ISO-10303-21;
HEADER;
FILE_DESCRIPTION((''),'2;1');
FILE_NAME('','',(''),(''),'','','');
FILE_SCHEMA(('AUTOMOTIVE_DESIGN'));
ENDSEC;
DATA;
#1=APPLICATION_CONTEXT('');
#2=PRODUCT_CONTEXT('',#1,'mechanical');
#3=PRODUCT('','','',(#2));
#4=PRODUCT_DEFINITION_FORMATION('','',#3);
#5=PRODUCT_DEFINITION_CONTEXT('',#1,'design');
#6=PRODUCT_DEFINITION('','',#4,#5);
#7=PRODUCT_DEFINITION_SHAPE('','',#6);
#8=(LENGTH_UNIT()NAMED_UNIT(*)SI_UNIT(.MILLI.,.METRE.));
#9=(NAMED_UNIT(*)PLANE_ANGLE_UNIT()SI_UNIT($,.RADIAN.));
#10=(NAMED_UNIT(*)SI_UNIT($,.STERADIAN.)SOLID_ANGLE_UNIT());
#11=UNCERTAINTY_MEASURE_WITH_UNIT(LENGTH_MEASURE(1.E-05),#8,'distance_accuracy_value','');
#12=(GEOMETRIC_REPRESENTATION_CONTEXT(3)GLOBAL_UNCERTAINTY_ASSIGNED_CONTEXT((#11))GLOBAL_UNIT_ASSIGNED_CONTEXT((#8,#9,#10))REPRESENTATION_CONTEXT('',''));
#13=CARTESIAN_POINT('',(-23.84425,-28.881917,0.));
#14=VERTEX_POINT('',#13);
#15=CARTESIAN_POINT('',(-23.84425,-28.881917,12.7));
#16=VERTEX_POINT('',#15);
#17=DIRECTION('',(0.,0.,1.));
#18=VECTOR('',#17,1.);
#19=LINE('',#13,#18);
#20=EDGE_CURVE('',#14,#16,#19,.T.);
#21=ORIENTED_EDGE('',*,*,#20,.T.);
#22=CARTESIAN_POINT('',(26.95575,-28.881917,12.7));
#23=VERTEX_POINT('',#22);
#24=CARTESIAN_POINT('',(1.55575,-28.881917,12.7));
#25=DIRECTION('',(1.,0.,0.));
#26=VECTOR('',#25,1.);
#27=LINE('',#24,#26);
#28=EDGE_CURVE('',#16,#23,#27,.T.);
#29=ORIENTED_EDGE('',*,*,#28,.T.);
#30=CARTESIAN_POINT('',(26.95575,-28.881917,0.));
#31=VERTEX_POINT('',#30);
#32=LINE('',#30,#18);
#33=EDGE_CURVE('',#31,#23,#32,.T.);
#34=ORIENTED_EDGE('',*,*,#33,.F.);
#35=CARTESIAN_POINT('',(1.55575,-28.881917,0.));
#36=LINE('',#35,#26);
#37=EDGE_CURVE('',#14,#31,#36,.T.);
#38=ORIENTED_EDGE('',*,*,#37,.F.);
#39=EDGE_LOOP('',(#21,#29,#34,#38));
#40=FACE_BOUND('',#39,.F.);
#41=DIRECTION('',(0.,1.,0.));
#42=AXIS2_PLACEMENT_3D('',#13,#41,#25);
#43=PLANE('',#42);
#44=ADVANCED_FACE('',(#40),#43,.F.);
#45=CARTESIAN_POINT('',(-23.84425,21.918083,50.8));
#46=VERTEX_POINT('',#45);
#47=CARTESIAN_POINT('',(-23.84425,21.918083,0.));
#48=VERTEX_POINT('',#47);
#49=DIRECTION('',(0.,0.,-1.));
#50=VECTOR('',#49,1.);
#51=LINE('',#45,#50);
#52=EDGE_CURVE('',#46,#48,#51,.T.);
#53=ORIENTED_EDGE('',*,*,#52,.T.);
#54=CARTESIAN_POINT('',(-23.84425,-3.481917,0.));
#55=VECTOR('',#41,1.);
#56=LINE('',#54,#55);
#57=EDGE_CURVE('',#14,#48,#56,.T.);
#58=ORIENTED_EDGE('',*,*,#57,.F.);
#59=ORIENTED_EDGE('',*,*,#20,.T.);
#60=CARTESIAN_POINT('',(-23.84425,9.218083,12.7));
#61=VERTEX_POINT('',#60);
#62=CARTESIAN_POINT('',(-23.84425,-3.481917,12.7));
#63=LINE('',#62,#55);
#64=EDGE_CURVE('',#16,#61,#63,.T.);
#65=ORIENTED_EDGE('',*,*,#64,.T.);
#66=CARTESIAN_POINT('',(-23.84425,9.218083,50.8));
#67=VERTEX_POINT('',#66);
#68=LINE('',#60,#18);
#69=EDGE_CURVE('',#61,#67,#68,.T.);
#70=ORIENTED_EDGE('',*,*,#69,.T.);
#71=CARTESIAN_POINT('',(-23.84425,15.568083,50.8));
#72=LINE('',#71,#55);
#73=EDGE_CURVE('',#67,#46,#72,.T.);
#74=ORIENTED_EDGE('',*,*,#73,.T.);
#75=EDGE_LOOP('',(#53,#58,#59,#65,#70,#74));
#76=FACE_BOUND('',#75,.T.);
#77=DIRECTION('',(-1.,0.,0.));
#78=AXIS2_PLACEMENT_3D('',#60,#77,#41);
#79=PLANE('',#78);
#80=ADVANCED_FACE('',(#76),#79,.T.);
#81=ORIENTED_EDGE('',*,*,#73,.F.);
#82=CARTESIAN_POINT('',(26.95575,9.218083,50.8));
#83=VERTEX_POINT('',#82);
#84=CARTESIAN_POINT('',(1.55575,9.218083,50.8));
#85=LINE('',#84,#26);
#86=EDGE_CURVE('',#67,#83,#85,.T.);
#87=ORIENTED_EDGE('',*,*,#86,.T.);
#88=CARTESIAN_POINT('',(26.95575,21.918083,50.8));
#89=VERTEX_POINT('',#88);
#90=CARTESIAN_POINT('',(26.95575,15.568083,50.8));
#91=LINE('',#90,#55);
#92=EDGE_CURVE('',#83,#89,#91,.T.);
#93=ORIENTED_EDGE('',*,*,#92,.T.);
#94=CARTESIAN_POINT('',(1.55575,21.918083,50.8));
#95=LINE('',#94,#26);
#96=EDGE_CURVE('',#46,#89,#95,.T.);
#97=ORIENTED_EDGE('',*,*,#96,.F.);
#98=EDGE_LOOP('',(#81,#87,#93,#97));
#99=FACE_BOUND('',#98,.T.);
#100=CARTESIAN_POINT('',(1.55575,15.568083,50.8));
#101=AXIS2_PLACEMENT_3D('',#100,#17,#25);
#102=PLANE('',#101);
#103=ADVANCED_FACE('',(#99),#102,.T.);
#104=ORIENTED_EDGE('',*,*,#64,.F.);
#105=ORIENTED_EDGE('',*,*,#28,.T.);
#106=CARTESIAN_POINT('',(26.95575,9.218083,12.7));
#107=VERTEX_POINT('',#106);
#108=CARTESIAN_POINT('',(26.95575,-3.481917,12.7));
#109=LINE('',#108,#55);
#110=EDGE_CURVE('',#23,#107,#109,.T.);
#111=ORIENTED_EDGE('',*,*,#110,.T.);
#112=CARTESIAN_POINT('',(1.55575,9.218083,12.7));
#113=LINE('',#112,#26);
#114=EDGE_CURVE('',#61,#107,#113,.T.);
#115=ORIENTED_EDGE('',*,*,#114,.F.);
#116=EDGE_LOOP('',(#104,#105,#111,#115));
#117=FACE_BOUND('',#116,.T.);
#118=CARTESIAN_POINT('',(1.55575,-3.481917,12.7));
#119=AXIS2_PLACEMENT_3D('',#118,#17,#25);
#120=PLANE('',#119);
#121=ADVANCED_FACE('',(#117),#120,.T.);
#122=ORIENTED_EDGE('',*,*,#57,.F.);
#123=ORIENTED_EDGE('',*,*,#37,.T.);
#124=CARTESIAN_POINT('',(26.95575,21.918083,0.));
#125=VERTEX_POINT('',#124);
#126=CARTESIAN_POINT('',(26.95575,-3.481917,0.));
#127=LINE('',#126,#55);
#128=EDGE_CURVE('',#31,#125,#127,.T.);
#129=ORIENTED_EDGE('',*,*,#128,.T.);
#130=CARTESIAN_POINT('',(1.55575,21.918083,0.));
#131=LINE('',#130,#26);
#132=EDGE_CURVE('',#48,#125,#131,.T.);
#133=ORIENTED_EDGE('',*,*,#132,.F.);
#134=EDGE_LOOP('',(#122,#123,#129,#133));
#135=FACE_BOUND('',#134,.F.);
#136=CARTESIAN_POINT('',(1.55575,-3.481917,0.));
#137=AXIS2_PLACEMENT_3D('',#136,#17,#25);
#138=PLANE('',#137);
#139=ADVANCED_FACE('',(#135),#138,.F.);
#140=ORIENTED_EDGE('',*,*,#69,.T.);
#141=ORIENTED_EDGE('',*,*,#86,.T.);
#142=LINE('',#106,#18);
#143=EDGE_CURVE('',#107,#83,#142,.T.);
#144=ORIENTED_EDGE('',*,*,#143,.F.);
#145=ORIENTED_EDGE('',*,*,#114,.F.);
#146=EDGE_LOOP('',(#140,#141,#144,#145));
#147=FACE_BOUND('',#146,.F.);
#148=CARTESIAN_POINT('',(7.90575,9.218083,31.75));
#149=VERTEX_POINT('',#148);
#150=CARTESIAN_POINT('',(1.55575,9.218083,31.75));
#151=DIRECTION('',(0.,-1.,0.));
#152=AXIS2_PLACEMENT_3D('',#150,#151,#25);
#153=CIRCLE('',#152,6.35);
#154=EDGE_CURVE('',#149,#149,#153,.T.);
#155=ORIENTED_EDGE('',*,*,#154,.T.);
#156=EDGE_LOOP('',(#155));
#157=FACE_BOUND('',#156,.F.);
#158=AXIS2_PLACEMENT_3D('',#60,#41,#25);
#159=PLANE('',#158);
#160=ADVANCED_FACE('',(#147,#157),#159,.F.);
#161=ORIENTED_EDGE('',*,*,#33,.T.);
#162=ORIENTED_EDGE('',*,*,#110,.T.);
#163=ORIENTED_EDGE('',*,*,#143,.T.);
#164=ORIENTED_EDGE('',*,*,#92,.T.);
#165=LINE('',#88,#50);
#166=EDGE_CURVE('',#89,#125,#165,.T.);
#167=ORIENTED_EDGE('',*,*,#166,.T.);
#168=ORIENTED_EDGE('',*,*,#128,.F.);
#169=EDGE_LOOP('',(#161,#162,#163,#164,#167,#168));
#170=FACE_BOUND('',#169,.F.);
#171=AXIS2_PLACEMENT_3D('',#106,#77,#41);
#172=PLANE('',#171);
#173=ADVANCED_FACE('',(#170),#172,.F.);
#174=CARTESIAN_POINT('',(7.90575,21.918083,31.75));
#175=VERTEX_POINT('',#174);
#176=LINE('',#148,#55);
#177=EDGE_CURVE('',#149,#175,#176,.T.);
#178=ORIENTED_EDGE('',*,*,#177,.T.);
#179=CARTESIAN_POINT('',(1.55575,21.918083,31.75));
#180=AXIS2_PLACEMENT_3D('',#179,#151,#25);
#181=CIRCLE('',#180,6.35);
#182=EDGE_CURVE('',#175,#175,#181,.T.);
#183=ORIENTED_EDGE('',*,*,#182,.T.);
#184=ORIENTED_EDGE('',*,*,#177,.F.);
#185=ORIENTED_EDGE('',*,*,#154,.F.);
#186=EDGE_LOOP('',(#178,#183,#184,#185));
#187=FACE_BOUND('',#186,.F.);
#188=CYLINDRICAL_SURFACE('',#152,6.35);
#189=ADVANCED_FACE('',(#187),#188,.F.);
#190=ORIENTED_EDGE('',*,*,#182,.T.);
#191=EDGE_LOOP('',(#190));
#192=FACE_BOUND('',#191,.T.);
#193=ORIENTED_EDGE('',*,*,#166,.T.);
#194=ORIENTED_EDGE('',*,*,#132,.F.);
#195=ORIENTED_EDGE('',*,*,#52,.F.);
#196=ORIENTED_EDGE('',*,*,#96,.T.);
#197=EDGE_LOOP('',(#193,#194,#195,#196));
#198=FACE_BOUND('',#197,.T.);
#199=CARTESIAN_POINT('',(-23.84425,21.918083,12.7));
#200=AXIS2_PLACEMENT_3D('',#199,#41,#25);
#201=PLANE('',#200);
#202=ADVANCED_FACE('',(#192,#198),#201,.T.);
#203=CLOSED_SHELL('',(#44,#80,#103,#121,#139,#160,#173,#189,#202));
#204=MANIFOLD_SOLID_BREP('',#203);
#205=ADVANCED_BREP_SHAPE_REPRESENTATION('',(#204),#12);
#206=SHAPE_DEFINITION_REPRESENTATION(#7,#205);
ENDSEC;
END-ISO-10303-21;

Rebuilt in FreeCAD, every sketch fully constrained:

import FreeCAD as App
import Part
import Sketcher
from FreeCAD import Vector
Q = App.Units.Quantity

doc = App.newDocument("Part")
body = doc.addObject("PartDesign::Body", "Body")

sketch1 = body.newObject("Sketcher::SketchObject", "Sketch")
sketch1.AttachmentSupport = (doc.getObject("XY_Plane"), [""])
sketch1.MapMode = "FlatFace"
sketch1.addGeometry([
    Part.LineSegment(Vector(-23.84425, 21.918083, 0), Vector(-23.84425, -28.881917, 0)),
    Part.LineSegment(Vector(-23.84425, -28.881917, 0), Vector(26.95575, -28.881917, 0)),
    Part.LineSegment(Vector(26.95575, -28.881917, 0), Vector(26.95575, 21.918083, 0)),
    Part.LineSegment(Vector(26.95575, 21.918083, 0), Vector(-23.84425, 21.918083, 0)),
], False)
sketch1.addConstraint([
    Sketcher.Constraint("Coincident", 0, 2, 1, 1),
    Sketcher.Constraint("Coincident", 1, 2, 2, 1),
    Sketcher.Constraint("Coincident", 2, 2, 3, 1),
    Sketcher.Constraint("Coincident", 3, 2, 0, 1),
    Sketcher.Constraint("Vertical", 0),
    Sketcher.Constraint("Horizontal", 1),
    Sketcher.Constraint("Vertical", 2),
    Sketcher.Constraint("Horizontal", 3),
    Sketcher.Constraint("Equal", 3, 0),
    Sketcher.Constraint("DistanceX", 1, 1, 1, 2, Q("2 in")),
    Sketcher.Constraint("DistanceX", 0, 2, -1, 1, 23.84425),
    Sketcher.Constraint("DistanceY", 0, 2, -1, 1, 28.881917),
])
pad1 = body.newObject("PartDesign::Pad", "Pad")
pad1.Profile = sketch1
pad1.Length = Q("0.5 in")

sketch2 = body.newObject("Sketcher::SketchObject", "Sketch001")
sketch2.AttachmentSupport = (doc.getObject("XY_Plane"), [""])
sketch2.MapMode = "FlatFace"
sketch2.AttachmentOffset = App.Placement(Vector(0, 0, 0.5 * 25.4), App.Rotation())
sketch2.addGeometry([
    Part.LineSegment(Vector(-23.84425, 21.918083, 0), Vector(-23.84425, 9.218083, 0)),
    Part.LineSegment(Vector(-23.84425, 9.218083, 0), Vector(26.95575, 9.218083, 0)),
    Part.LineSegment(Vector(26.95575, 9.218083, 0), Vector(26.95575, 21.918083, 0)),
    Part.LineSegment(Vector(26.95575, 21.918083, 0), Vector(-23.84425, 21.918083, 0)),
], False)
sketch2.addConstraint([
    Sketcher.Constraint("Coincident", 0, 2, 1, 1),
    Sketcher.Constraint("Coincident", 1, 2, 2, 1),
    Sketcher.Constraint("Coincident", 2, 2, 3, 1),
    Sketcher.Constraint("Coincident", 3, 2, 0, 1),
    Sketcher.Constraint("Vertical", 0),
    Sketcher.Constraint("Horizontal", 1),
    Sketcher.Constraint("Vertical", 2),
    Sketcher.Constraint("Horizontal", 3),
    Sketcher.Constraint("DistanceX", 1, 1, 1, 2, Q("2 in")),
    Sketcher.Constraint("DistanceY", 0, 2, 0, 1, Q("0.5 in")),
    Sketcher.Constraint("DistanceX", 0, 2, -1, 1, 23.84425),
    Sketcher.Constraint("DistanceY", -1, 1, 0, 2, 9.218083),
])
pad2 = body.newObject("PartDesign::Pad", "Pad001")
pad2.Profile = sketch2
pad2.Length = Q("1.5 in")

sketch3 = body.newObject("Sketcher::SketchObject", "Sketch002")
sketch3.AttachmentSupport = (doc.getObject("XZ_Plane"), [""])
sketch3.MapMode = "FlatFace"
sketch3.AttachmentOffset = App.Placement(Vector(0, 0, -9.218083), App.Rotation())
sketch3.addGeometry(Part.Circle(Vector(1.55575, 31.75, 0), Vector(0, 0, 1), 6.35), False)
sketch3.addConstraint([
    Sketcher.Constraint("Diameter", 0, Q("0.5 in")),
    Sketcher.Constraint("DistanceY", -1, 1, 0, 3, Q("1.25 in")),
    Sketcher.Constraint("DistanceX", -1, 1, 0, 3, 1.55575),
])
pocket1 = body.newObject("PartDesign::Pocket", "Pocket")
pocket1.Profile = sketch3
pocket1.Length = Q("1 in")

doc.recompute()
